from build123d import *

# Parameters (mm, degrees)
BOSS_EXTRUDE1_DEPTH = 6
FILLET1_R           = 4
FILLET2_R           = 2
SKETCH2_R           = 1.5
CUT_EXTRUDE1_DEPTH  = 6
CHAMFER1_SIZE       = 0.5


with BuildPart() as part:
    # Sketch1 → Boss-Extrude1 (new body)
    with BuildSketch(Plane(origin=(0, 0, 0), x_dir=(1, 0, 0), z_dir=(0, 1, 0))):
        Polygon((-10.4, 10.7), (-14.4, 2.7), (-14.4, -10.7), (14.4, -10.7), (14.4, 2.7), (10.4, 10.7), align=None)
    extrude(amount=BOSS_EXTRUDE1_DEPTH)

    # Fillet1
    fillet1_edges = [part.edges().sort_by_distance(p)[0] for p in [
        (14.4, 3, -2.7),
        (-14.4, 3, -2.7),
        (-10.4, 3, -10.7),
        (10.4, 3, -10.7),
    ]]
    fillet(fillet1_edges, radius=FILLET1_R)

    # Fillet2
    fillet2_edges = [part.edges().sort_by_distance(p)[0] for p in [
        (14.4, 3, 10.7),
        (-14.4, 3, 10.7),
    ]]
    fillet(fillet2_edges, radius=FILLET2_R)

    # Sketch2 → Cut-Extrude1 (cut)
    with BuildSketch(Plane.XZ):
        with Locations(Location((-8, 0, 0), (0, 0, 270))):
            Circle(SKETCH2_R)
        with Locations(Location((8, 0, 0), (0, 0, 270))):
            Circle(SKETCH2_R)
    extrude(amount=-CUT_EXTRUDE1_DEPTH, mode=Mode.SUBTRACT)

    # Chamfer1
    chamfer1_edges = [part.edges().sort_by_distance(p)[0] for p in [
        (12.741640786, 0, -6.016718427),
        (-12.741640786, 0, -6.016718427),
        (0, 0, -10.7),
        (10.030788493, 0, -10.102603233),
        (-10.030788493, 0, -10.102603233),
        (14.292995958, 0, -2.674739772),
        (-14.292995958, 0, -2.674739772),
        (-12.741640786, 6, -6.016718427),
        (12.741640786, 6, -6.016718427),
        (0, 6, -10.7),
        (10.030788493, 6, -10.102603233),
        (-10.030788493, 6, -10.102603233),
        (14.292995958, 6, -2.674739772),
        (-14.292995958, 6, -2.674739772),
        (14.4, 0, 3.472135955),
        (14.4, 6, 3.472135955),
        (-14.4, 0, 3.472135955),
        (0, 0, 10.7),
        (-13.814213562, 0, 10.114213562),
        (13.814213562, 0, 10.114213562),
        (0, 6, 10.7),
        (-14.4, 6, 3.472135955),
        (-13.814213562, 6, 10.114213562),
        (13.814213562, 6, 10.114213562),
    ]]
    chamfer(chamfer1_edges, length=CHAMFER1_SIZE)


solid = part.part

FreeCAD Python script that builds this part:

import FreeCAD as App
import Part
import Sketcher
from FreeCAD import Vector


def edges_at(feature, points):
    """Names of the edges that pass closest to the given points."""
    edges = feature.Shape.Edges
    near = lambda p: min(range(len(edges)), key=lambda i: edges[i].distToShape(Part.Vertex(*p))[0])
    return sorted({f"Edge{near(p) + 1}" for p in points})


def add_polygon(sketch, points):
    """Adds a closed chain of lines whose ends are joined by coincident constraints."""
    first, n = sketch.GeometryCount, len(points)
    for a, b in zip(points, points[1:] + points[:1]):
        sketch.addGeometry(Part.LineSegment(App.Vector(*a, 0), App.Vector(*b, 0)), False)
    for i in range(n):
        sketch.addConstraint(Sketcher.Constraint("Coincident", first + i, 2, first + (i + 1) % n, 1))

doc = App.newDocument("Part")
body = doc.addObject("PartDesign::Body", "Body")

# Sketch on XZ plane
sketch1 = doc.addObject("Sketcher::SketchObject", "Sketch")
body.addObject(sketch1)
sketch1.AttachmentSupport = (doc.XZ_Plane, [""])
sketch1.MapMode = "FlatFace"
add_polygon(sketch1, [(-10, -11), (-14, -3), (-14, 11), (14, 11), (14, -3), (10, -11)])  # lines 0-5
sketch1.addConstraint(Sketcher.Constraint("Vertical", 1))
sketch1.addConstraint(Sketcher.Constraint("Horizontal", 2))
sketch1.addConstraint(Sketcher.Constraint("Vertical", 3))
sketch1.addConstraint(Sketcher.Constraint("Horizontal", 5))
sketch1.addConstraint(Sketcher.Constraint("Symmetric", 0, 2, 3, 2, -2))
sketch1.addConstraint(Sketcher.Constraint("Equal", 0, 4))
sketch1.addConstraint(Sketcher.Constraint("DistanceX", 2, 1, 2, 2, 28.8))
sketch1.addConstraint(Sketcher.Constraint("DistanceX", 5, 2, 5, 1, 20.8))
sketch1.addConstraint(Sketcher.Constraint("DistanceY", 1, 1, 1, 2, 13.4))
sketch1.addConstraint(Sketcher.Constraint("DistanceY", 4, 2, 3, 2, 8.0))
sketch1.addConstraint(Sketcher.Constraint("DistanceY", 0, 2, -1, 1, 2.7))
pad1 = doc.addObject("PartDesign::Pad", "Pad")
body.addObject(pad1)
pad1.Profile = sketch1
pad1.Length = 6
pad1.Reversed = True
doc.recompute()

fillet = doc.addObject("PartDesign::Fillet", "Fillet")
body.addObject(fillet)
fillet.Base = (pad1, edges_at(pad1, [
    (14.4, 3, -2.7),
    (-14.4, 3, -2.7),
    (-10.4, 3, -10.7),
    (10.4, 3, -10.7),
]))
fillet.Radius = 4
doc.recompute()

fillet2 = doc.addObject("PartDesign::Fillet", "Fillet001")
body.addObject(fillet2)
fillet2.Base = (fillet, edges_at(fillet, [(14.4, 3, 10.7), (-14.4, 3, 10.7)]))
fillet2.Radius = 2

# Sketch on XZ plane
sketch2 = doc.addObject("Sketcher::SketchObject", "Sketch001")
body.addObject(sketch2)
sketch2.AttachmentSupport = (doc.XZ_Plane, [""])
sketch2.MapMode = "FlatFace"
sketch2.addGeometry(Part.Circle(Vector(-8, 0, 0), Vector(0, 0, 1), 1.5), False)
sketch2.addGeometry(Part.Circle(Vector(8, 0, 0), Vector(0, 0, 1), 1.5), False)
sketch2.addConstraint(Sketcher.Constraint("Equal", 0, 1))
sketch2.addConstraint(Sketcher.Constraint("Symmetric", 0, 3, 1, 3, -1, 1))
sketch2.addConstraint(Sketcher.Constraint("PointOnObject", 0, 3, -1))
sketch2.addConstraint(Sketcher.Constraint("Diameter", 0, 3.0))
sketch2.addConstraint(Sketcher.Constraint("DistanceX", 0, 3, -1, 1, 8.0))
pocket1 = doc.addObject("PartDesign::Pocket", "Pocket")
body.addObject(pocket1)
pocket1.Profile = sketch2
pocket1.Length = 6
doc.recompute()

chamfer = doc.addObject("PartDesign::Chamfer", "Chamfer")
body.addObject(chamfer)
chamfer.Base = (pocket1, edges_at(pocket1, [
    (12.742, 0, -6.017),
    (-12.742, 0, -6.017),
    (0, 0, -10.7),
    (10.031, 0, -10.103),
    (-10.031, 0, -10.103),
    (14.293, 0, -2.675),
    (-14.293, 0, -2.675),
    (-12.742, 6, -6.017),
    (12.742, 6, -6.017),
    (0, 6, -10.7),
    (10.031, 6, -10.103),
    (-10.031, 6, -10.103),
    (14.293, 6, -2.675),
    (-14.293, 6, -2.675),
    (14.4, 0, 3.472),
    (14.4, 6, 3.472),
    (-14.4, 0, 3.472),
    (0, 0, 10.7),
    (-13.814, 0, 10.114),
    (13.814, 0, 10.114),
    (0, 6, 10.7),
    (-14.4, 6, 3.472),
    (-13.814, 6, 10.114),
    (13.814, 6, 10.114),
]))
chamfer.Size = 0.5

doc.recompute()
